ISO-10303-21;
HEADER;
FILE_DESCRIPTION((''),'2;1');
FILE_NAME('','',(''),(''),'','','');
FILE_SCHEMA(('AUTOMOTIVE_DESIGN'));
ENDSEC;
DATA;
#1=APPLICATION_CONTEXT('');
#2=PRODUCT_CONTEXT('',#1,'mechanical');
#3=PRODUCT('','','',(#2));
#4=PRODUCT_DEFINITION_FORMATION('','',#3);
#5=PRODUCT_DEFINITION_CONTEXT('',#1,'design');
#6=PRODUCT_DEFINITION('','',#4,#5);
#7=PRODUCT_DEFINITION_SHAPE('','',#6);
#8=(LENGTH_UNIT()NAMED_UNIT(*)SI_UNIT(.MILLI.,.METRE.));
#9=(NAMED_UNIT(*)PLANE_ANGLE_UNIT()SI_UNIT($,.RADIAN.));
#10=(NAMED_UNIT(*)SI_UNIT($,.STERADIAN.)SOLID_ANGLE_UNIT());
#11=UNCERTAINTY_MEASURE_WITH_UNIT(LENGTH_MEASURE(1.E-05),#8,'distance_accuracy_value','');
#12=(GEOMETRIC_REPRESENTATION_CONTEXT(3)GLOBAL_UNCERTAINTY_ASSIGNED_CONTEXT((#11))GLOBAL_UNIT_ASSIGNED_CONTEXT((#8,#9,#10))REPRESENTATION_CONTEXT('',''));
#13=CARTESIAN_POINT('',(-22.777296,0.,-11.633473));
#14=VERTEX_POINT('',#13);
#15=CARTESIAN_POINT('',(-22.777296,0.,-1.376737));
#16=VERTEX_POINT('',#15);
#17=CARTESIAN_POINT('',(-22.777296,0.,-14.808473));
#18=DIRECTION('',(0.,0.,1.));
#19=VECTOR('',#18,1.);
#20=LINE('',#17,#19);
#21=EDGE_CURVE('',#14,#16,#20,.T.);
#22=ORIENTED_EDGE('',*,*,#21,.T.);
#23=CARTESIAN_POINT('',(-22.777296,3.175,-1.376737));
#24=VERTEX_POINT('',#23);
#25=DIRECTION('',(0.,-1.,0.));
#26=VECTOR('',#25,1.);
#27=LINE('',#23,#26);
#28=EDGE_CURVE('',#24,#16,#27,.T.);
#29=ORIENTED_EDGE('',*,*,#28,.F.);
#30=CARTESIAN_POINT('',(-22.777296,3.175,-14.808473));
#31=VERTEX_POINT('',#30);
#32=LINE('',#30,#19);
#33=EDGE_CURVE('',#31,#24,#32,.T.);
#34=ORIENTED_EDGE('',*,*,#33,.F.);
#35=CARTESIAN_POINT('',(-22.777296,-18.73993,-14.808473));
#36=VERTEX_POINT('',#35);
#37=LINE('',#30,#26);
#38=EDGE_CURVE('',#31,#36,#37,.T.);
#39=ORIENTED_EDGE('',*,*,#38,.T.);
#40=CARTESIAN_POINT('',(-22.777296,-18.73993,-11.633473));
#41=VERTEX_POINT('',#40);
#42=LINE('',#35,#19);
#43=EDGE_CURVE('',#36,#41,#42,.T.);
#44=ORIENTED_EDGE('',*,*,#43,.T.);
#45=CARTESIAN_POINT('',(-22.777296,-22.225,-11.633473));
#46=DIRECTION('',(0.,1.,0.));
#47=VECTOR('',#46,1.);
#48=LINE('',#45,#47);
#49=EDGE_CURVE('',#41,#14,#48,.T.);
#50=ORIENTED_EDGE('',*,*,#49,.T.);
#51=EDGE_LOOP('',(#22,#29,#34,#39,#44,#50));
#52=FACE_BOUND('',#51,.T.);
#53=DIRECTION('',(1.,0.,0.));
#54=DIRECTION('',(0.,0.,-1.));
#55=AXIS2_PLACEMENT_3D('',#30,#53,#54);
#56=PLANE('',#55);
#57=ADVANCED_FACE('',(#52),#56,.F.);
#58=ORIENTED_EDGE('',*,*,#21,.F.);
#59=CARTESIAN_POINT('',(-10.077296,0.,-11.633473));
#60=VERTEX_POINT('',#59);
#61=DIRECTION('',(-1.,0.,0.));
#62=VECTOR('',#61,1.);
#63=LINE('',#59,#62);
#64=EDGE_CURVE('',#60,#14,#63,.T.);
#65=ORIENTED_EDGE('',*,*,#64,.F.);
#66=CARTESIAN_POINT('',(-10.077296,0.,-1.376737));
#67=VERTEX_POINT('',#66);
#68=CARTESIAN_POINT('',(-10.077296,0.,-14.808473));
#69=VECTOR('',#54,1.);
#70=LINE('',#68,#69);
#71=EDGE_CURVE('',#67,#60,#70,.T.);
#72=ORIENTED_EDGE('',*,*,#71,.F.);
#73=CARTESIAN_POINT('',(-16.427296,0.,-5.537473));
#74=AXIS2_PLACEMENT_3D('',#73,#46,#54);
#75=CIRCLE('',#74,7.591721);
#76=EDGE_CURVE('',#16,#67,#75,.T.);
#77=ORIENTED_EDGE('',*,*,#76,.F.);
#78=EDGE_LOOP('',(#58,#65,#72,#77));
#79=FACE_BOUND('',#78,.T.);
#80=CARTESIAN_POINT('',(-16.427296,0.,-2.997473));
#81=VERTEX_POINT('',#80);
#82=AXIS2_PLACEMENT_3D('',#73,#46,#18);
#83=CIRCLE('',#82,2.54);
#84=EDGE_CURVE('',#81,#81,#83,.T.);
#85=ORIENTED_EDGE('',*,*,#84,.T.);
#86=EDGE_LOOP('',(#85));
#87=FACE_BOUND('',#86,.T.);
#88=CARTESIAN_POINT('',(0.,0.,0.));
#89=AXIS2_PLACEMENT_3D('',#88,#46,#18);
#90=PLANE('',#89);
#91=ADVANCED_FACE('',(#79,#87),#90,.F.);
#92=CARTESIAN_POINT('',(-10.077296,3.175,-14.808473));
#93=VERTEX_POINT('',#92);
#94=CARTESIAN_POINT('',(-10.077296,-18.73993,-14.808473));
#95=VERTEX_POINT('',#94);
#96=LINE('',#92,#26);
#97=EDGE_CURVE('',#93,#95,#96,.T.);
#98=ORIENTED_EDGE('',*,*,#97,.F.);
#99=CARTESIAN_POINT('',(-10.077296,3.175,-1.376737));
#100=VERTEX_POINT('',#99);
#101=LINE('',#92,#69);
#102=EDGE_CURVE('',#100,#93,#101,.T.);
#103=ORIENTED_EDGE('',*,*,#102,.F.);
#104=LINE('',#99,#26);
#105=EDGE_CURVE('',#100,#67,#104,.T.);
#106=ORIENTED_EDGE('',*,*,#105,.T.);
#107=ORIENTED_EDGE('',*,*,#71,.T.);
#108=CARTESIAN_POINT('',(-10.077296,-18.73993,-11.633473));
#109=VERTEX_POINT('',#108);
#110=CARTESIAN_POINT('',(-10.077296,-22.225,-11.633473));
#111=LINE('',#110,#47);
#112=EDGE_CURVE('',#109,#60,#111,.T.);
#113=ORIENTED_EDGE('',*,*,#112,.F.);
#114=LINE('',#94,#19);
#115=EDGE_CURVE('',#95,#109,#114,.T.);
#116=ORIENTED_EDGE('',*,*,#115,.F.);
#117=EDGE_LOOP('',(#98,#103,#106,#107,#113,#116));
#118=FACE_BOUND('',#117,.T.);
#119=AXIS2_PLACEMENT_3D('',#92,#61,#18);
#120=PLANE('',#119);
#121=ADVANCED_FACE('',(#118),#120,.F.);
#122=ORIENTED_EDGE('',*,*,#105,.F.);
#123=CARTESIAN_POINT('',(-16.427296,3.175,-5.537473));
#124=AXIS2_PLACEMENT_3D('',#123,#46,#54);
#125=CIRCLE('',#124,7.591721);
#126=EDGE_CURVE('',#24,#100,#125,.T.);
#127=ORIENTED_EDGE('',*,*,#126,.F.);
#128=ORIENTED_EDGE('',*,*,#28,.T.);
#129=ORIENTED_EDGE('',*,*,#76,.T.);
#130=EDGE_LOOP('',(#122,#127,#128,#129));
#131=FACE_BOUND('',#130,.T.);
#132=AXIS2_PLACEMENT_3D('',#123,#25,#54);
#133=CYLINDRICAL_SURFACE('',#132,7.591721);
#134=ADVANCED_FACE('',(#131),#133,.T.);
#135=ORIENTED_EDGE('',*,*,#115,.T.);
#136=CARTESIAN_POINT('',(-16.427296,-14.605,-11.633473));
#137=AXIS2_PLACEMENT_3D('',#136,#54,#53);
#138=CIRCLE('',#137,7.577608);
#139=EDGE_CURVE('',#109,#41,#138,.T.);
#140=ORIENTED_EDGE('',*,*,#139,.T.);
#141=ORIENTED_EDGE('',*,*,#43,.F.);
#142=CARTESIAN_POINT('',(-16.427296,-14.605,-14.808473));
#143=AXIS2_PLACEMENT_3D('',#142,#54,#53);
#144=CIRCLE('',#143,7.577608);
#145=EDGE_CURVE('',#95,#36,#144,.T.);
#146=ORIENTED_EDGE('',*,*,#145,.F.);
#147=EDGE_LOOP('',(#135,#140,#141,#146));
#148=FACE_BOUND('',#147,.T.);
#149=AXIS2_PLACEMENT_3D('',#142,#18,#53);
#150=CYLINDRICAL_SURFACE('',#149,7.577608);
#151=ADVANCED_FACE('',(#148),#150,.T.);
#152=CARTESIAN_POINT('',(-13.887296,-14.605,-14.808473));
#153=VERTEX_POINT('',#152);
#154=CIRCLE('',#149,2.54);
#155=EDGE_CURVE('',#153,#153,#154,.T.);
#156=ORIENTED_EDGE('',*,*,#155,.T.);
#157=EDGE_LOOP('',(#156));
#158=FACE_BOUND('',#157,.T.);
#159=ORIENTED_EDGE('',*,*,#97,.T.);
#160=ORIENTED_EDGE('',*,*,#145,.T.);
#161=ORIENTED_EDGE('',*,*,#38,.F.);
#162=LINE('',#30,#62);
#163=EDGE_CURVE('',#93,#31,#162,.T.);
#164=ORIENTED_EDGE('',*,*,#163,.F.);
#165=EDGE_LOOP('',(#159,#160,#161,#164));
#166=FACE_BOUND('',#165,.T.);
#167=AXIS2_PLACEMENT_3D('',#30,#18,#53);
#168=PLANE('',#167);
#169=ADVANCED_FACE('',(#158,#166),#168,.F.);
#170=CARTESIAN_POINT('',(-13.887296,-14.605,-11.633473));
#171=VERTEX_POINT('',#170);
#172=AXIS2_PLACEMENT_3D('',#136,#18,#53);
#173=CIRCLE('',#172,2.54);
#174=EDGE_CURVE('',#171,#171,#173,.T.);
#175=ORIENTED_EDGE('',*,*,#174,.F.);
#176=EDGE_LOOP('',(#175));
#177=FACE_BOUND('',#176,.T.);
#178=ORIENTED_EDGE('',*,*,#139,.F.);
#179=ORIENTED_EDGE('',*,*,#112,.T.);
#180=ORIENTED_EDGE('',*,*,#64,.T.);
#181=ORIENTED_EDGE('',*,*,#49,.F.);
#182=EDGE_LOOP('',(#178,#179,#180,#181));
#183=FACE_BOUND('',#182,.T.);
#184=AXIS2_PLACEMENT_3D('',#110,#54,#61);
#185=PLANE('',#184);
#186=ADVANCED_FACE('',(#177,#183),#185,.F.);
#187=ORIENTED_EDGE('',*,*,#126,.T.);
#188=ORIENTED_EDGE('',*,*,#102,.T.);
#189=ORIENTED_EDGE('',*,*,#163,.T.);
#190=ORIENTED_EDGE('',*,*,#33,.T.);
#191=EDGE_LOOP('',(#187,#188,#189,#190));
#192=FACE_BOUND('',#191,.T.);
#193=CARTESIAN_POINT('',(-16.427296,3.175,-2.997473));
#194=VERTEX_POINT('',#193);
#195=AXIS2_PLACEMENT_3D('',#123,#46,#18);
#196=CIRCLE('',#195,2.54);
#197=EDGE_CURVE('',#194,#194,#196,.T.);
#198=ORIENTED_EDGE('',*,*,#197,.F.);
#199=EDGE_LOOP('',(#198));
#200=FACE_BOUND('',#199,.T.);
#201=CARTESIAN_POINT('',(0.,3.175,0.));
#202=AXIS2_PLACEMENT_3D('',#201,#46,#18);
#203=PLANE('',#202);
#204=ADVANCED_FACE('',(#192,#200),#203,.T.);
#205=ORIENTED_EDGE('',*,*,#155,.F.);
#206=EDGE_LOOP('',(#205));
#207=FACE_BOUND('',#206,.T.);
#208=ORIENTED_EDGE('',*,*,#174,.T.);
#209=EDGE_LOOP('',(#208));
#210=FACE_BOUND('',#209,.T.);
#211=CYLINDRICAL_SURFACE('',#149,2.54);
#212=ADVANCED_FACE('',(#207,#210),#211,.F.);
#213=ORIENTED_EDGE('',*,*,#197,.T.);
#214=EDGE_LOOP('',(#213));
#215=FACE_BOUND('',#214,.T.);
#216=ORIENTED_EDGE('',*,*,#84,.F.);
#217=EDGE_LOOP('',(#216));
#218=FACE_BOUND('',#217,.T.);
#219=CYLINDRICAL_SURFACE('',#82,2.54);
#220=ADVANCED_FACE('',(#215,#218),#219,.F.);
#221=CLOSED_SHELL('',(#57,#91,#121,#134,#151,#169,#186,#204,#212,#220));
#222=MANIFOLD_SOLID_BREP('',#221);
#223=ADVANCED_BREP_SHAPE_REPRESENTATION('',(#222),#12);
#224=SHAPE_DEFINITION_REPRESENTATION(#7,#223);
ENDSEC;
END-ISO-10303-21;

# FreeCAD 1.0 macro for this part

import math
import FreeCAD as App
import Part
import Sketcher
from FreeCAD import Vector
Q = App.Units.Quantity

doc = App.newDocument("Part")
body = doc.addObject("PartDesign::Body", "Body")

# Sketch on XZ plane
sketch1 = body.newObject("Sketcher::SketchObject", "Sketch")
sketch1.AttachmentSupport = (doc.getObject("XZ_Plane"), [""])
sketch1.MapMode = "FlatFace"
sketch1.addGeometry([
    Part.LineSegment(Vector(-23, -15, 0), Vector(-23, 2, 0)),
    Part.LineSegment(Vector(-23, 2, 0), Vector(-10, 2, 0)),
    Part.LineSegment(Vector(-10, 2, 0), Vector(-10, -15, 0)),
    Part.LineSegment(Vector(-10, -15, 0), Vector(-23, -15, 0)),
], False)
sketch1.addConstraint([
    Sketcher.Constraint("Coincident", 0, 2, 1, 1),
    Sketcher.Constraint("Coincident", 1, 2, 2, 1),
    Sketcher.Constraint("Coincident", 2, 2, 3, 1),
    Sketcher.Constraint("Coincident", 3, 2, 0, 1),
    Sketcher.Constraint("Vertical", 0),
    Sketcher.Constraint("Horizontal", 1),
    Sketcher.Constraint("Vertical", 2),
    Sketcher.Constraint("Horizontal", 3),
    Sketcher.Constraint("DistanceX", 1, 1, 1, 2, Q("0.5 in")),
    Sketcher.Constraint("DistanceY", 0, 1, 0, 2, Q("0.665 in")),
    Sketcher.Constraint("DistanceX", 0, 2, -1, 1, 22.777296),
    Sketcher.Constraint("DistanceY", -1, 1, 0, 2, 2.082527),
])
pad1 = body.newObject("PartDesign::Pad", "Pad")
pad1.Profile = sketch1
pad1.Length = Q("0.125 in")
pad1.Reversed = True

# Sketch on XZ plane
sketch2 = body.newObject("Sketcher::SketchObject", "Sketch001")
sketch2.AttachmentSupport = (doc.getObject("XZ_Plane"), [""])
sketch2.MapMode = "FlatFace"
sketch2.AttachmentOffset = App.Placement(Vector(0, 0, -0.125 * 25.4), App.Rotation())
sketch2.addGeometry(Part.Circle(Vector(-16.4, -5.5, 0), Vector(0, 0, 1), 2.5), False)
sketch2.addConstraint([
    Sketcher.Constraint("Diameter", 0, Q("0.2 in")),
    Sketcher.Constraint("DistanceX", 0, 3, -1, 1, 16.427296),
    Sketcher.Constraint("DistanceY", 0, 3, -1, 1, 5.537473),
])
pocket1 = body.newObject("PartDesign::Pocket", "Pocket")
pocket1.Profile = sketch2
pocket1.Type = "ThroughAll"
pocket1.Reversed = True

# Sketch on XZ plane
sketch3 = body.newObject("Sketcher::SketchObject", "Sketch002")
sketch3.AttachmentSupport = (doc.getObject("XZ_Plane"), [""])
sketch3.MapMode = "FlatFace"
sketch3.addGeometry([
    Part.LineSegment(Vector(-22.8, -11.6, 0), Vector(-22.8, -14.8, 0)),
    Part.LineSegment(Vector(-22.8, -14.8, 0), Vector(-10.1, -14.8, 0)),
    Part.LineSegment(Vector(-10.1, -14.8, 0), Vector(-10.1, -11.6, 0)),
    Part.LineSegment(Vector(-10.1, -11.6, 0), Vector(-22.8, -11.6, 0)),
], False)
sketch3.addConstraint([
    Sketcher.Constraint("Coincident", 0, 2, 1, 1),
    Sketcher.Constraint("Coincident", 1, 2, 2, 1),
    Sketcher.Constraint("Coincident", 2, 2, 3, 1),
    Sketcher.Constraint("Coincident", 3, 2, 0, 1),
    Sketcher.Constraint("Vertical", 0),
    Sketcher.Constraint("Horizontal", 1),
    Sketcher.Constraint("Vertical", 2),
    Sketcher.Constraint("Horizontal", 3),
    Sketcher.Constraint("DistanceX", 1, 1, 1, 2, Q("0.5 in")),
    Sketcher.Constraint("DistanceY", 0, 2, 0, 1, Q("0.125 in")),
    Sketcher.Constraint("DistanceX", 0, 2, -1, 1, 22.777296),
    Sketcher.Constraint("DistanceY", 0, 2, -1, 1, 14.808473),
])
pad2 = body.newObject("PartDesign::Pad", "Pad001")
pad2.Profile = sketch3
pad2.Length = Q("0.875 in")

# Sketch on XY plane
sketch4 = body.newObject("Sketcher::SketchObject", "Sketch003")
sketch4.AttachmentSupport = (doc.getObject("XY_Plane"), [""])
sketch4.MapMode = "FlatFace"
sketch4.AttachmentOffset = App.Placement(Vector(0, 0, -11.633473), App.Rotation())
sketch4.addGeometry(Part.Circle(Vector(-16.4, -14.6, 0), Vector(0, 0, 1), 2.5), False)
sketch4.addConstraint([
    Sketcher.Constraint("Diameter", 0, Q("0.2 in")),
    Sketcher.Constraint("DistanceY", 0, 3, -1, 1, Q("0.575 in")),
    Sketcher.Constraint("DistanceX", 0, 3, -1, 1, 16.427296),
])
pocket2 = body.newObject("PartDesign::Pocket", "Pocket001")
pocket2.Profile = sketch4
pocket2.Type = "ThroughAll"

# Sketch on XY plane
sketch5 = body.newObject("Sketcher::SketchObject", "Sketch004")
sketch5.AttachmentSupport = (doc.getObject("XY_Plane"), [""])
sketch5.MapMode = "FlatFace"
sketch5.AttachmentOffset = App.Placement(Vector(0, 0, -11.633473), App.Rotation())
sketch5.addGeometry([
    Part.LineSegment(Vector(-22.8, -22.2, 0), Vector(-10.1, -22.2, 0)),
    Part.LineSegment(Vector(-10.1, -22.2, 0), Vector(-10.1, -18.7, 0)),
    Part.ArcOfCircle(Part.Circle(Vector(-16.4, -14.6, 0), Vector(0, 0, 1), 7.6), math.radians(-147), math.radians(-33)),
    Part.LineSegment(Vector(-22.8, -18.7, 0), Vector(-22.8, -22.2, 0)),
], False)
sketch5.addConstraint([
    Sketcher.Constraint("Coincident", 0, 2, 1, 1),
    Sketcher.Constraint("Coincident", 1, 2, 2, 2),
    Sketcher.Constraint("Coincident", 2, 1, 3, 1),
    Sketcher.Constraint("Coincident", 3, 2, 0, 1),
    Sketcher.Constraint("Horizontal", 0),
    Sketcher.Constraint("Vertical", 1),
    Sketcher.Constraint("Vertical", 3),
    Sketcher.Constraint("Horizontal", 1, 2, 2, 1),
    Sketcher.Constraint("DistanceX", 0, 1, 0, 2, Q("0.5 in")),
    Sketcher.Constraint("DistanceY", 0, 2, 2, 3, Q("0.3 in")),
    Sketcher.Constraint("DistanceY", 2, 3, -1, 1, Q("0.575 in")),
    Sketcher.Constraint("Radius", 2, 7.577608),
    Sketcher.Constraint("DistanceX", 2, 3, -1, 1, 16.427296),
])
pocket3 = body.newObject("PartDesign::Pocket", "Pocket002")
pocket3.Profile = sketch5
pocket3.Type = "ThroughAll"

# Sketch on XZ plane
sketch6 = body.newObject("Sketcher::SketchObject", "Sketch005")
sketch6.AttachmentSupport = (doc.getObject("XZ_Plane"), [""])
sketch6.MapMode = "FlatFace"
sketch6.addGeometry([
    Part.LineSegment(Vector(-22.8, 2.1, 0), Vector(-22.8, -1.4, 0)),
    Part.ArcOfCircle(Part.Circle(Vector(-16.4, -5.5, 0), Vector(0, 0, 1), 7.6), math.radians(33), math.radians(147)),
    Part.LineSegment(Vector(-10.1, -1.4, 0), Vector(-10.1, 2.1, 0)),
    Part.LineSegment(Vector(-10.1, 2.1, 0), Vector(-22.8, 2.1, 0)),
], False)
sketch6.addConstraint([
    Sketcher.Constraint("Coincident", 0, 2, 1, 2),
    Sketcher.Constraint("Coincident", 1, 1, 2, 1),
    Sketcher.Constraint("Coincident", 2, 2, 3, 1),
    Sketcher.Constraint("Coincident", 3, 2, 0, 1),
    Sketcher.Constraint("Vertical", 0),
    Sketcher.Constraint("Vertical", 2),
    Sketcher.Constraint("Horizontal", 3),
    Sketcher.Constraint("Horizontal", 0, 2, 1, 1),
    Sketcher.Constraint("DistanceX", 3, 2, 3, 1, Q("0.5 in")),
    Sketcher.Constraint("DistanceY", 1, 3, 2, 2, Q("0.3 in")),
    Sketcher.Constraint("Radius", 1, 7.591721),
    Sketcher.Constraint("DistanceX", 1, 3, -1, 1, 16.427296),
    Sketcher.Constraint("DistanceY", 1, 3, -1, 1, 5.537473),
])
pocket4 = body.newObject("PartDesign::Pocket", "Pocket003")
pocket4.Profile = sketch6
pocket4.Type = "ThroughAll"

doc.recompute()
